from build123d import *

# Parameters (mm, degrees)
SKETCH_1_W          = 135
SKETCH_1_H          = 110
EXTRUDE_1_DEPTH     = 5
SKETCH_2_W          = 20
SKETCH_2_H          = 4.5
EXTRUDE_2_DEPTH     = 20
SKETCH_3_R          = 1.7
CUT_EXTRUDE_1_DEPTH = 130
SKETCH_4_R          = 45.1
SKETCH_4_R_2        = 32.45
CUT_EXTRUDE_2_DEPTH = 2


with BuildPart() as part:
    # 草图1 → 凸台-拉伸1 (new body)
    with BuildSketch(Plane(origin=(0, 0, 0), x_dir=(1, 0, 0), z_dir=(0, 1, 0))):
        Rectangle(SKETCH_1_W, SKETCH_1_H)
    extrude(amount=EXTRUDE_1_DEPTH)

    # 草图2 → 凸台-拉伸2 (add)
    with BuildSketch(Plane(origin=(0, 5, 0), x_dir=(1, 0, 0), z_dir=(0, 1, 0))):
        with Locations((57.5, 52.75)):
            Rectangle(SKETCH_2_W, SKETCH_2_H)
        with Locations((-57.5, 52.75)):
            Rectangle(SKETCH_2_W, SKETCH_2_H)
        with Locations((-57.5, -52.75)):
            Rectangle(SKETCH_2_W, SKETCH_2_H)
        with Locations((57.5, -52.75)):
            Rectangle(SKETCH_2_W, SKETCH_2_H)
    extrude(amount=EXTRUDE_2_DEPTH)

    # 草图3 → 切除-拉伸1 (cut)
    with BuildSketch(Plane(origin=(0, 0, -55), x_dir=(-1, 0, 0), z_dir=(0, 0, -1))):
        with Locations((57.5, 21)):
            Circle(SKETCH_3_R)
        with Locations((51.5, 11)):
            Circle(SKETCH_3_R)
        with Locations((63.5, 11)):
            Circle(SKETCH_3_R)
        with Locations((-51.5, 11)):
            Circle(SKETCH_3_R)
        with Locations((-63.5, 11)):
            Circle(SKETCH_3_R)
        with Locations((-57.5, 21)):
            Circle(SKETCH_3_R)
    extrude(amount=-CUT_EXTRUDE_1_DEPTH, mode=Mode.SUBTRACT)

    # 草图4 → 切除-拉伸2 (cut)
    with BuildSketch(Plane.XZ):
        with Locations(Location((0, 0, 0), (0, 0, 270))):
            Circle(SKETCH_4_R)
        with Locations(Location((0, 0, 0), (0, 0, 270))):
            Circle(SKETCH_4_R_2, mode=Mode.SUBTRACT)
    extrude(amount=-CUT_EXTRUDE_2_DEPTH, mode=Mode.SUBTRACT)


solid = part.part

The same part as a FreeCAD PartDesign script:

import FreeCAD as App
import Part
import Sketcher
from FreeCAD import Vector
Q = App.Units.Quantity


def add_polygon(sketch, points):
    """Adds a closed chain of lines whose ends are joined by coincident constraints."""
    first, n = sketch.GeometryCount, len(points)
    for a, b in zip(points, points[1:] + points[:1]):
        sketch.addGeometry(Part.LineSegment(App.Vector(*a, 0), App.Vector(*b, 0)), False)
    for i in range(n):
        sketch.addConstraint(Sketcher.Constraint("Coincident", first + i, 2, first + (i + 1) % n, 1))

doc = App.newDocument("Part")
body = doc.addObject("PartDesign::Body", "Body")

# Sketch on XZ plane
sketch1 = body.newObject("Sketcher::SketchObject", "Sketch")
sketch1.AttachmentSupport = (doc.getObject("XZ_Plane"), [""])
sketch1.MapMode = "FlatFace"
add_polygon(sketch1, [(-68, -55), (-68, 55), (68, 55), (68, -55)])  # lines 0-3
sketch1.addConstraint([
    Sketcher.Constraint("Vertical", 0),
    Sketcher.Constraint("Horizontal", 1),
    Sketcher.Constraint("Vertical", 2),
    Sketcher.Constraint("Horizontal", 3),
    Sketcher.Constraint("Symmetric", 0, 2, 2, 2, -1, 1),
    Sketcher.Constraint("DistanceX", 1, 1, 1, 2, Q("135 mm")),
    Sketcher.Constraint("DistanceY", 0, 1, 0, 2, Q("110 mm")),
])
pad1 = body.newObject("PartDesign::Pad", "Pad")
pad1.Profile = sketch1
pad1.Length = 5
pad1.Reversed = True

# Sketch on XZ plane
sketch2 = body.newObject("Sketcher::SketchObject", "Sketch001")
sketch2.AttachmentSupport = (doc.getObject("XZ_Plane"), [""])
sketch2.MapMode = "FlatFace"
sketch2.AttachmentOffset = App.Placement(Vector(0, 0, -5), App.Rotation())
add_polygon(sketch2, [(47.5, -55), (47.5, -50.5), (67.5, -50.5), (67.5, -55)])  # lines 0-3
add_polygon(sketch2, [(-67.5, -55), (-67.5, -50.5), (-47.5, -50.5), (-47.5, -55)])  # lines 4-7
add_polygon(sketch2, [(-67.5, 50.5), (-67.5, 55), (-47.5, 55), (-47.5, 50.5)])  # lines 8-11
add_polygon(sketch2, [(47.5, 50.5), (47.5, 55), (67.5, 55), (67.5, 50.5)])  # lines 12-15
sketch2.addConstraint([
    Sketcher.Constraint("Vertical", 0),
    Sketcher.Constraint("Horizontal", 1),
    Sketcher.Constraint("Vertical", 2),
    Sketcher.Constraint("Horizontal", 3),
    Sketcher.Constraint("Vertical", 4),
    Sketcher.Constraint("Horizontal", 5),
    Sketcher.Constraint("Vertical", 6),
    Sketcher.Constraint("Horizontal", 7),
    Sketcher.Constraint("Vertical", 8),
    Sketcher.Constraint("Horizontal", 9),
    Sketcher.Constraint("Vertical", 10),
    Sketcher.Constraint("Horizontal", 11),
    Sketcher.Constraint("Vertical", 12),
    Sketcher.Constraint("Horizontal", 13),
    Sketcher.Constraint("Vertical", 14),
    Sketcher.Constraint("Horizontal", 15),
    Sketcher.Constraint("Symmetric", 2, 2, 8, 2, -1, 1),
    Sketcher.Constraint("Symmetric", 0, 2, 10, 2, -1, 1),
    Sketcher.Constraint("Symmetric", 6, 2, 12, 2, -1, 1),
    Sketcher.Constraint("Symmetric", 4, 2, 14, 2, -1, 1),
    Sketcher.Constraint("Symmetric", 1, 2, 4, 2, -2),
    Sketcher.Constraint("Symmetric", 3, 2, 6, 2, -2),
    Sketcher.Constraint("DistanceX", 1, 1, 1, 2, Q("20 mm")),
    Sketcher.Constraint("DistanceY", 0, 1, 0, 2, Q("4.5 mm")),
    Sketcher.Constraint("DistanceY", 2, 2, -1, 1, Q("55 mm")),
    Sketcher.Constraint("DistanceX", 4, 2, 0, 2, Q("115 mm")),
])
pad2 = body.newObject("PartDesign::Pad", "Pad001")
pad2.Profile = sketch2
pad2.Length = 20
pad2.Reversed = True

# Sketch on XY plane
sketch3 = body.newObject("Sketcher::SketchObject", "Sketch002")
sketch3.AttachmentSupport = (doc.getObject("XY_Plane"), [""])
sketch3.MapMode = "FlatFace"
sketch3.AttachmentOffset = App.Placement(Vector(0, 0, -55), App.Rotation())
sketch3.addGeometry([
    Part.Circle(Vector(-57.5, 21, 0), Vector(0, 0, 1), 1.7),  # 0
    Part.Circle(Vector(-51.5, 11, 0), Vector(0, 0, 1), 1.7),  # 1
    Part.Circle(Vector(-63.5, 11, 0), Vector(0, 0, 1), 1.7),  # 2
    Part.Circle(Vector(51.5, 11, 0), Vector(0, 0, 1), 1.7),  # 3
    Part.Circle(Vector(63.5, 11, 0), Vector(0, 0, 1), 1.7),  # 4
    Part.Circle(Vector(57.5, 21, 0), Vector(0, 0, 1), 1.7),  # 5
], False)
sketch3.addConstraint([
    Sketcher.Constraint("Equal", 0, 1),
    Sketcher.Constraint("Equal", 1, 2),
    Sketcher.Constraint("Equal", 2, 3),
    Sketcher.Constraint("Equal", 3, 4),
    Sketcher.Constraint("Equal", 4, 5),
    Sketcher.Constraint("Symmetric", 1, 3, 3, 3, -2),
    Sketcher.Constraint("Symmetric", 2, 3, 4, 3, -2),
    Sketcher.Constraint("Symmetric", 0, 3, 5, 3, -2),
    Sketcher.Constraint("Horizontal", 1, 3, 2, 3),
    Sketcher.Constraint("Diameter", 0, Q("3.4 mm")),
    Sketcher.Constraint("DistanceY", -1, 1, 0, 3, Q("21 mm")),
    Sketcher.Constraint("DistanceY", -1, 1, 1, 3, Q("11 mm")),
    Sketcher.Constraint("DistanceX", 0, 3, 1, 3, Q("6 mm")),
    Sketcher.Constraint("DistanceX", 2, 3, 0, 3, Q("6 mm")),
    Sketcher.Constraint("DistanceX", 1, 3, 3, 3, Q("103 mm")),
])
pocket1 = body.newObject("PartDesign::Pocket", "Pocket")
pocket1.Profile = sketch3
pocket1.Length = 130
pocket1.Reversed = True

# Sketch on XZ plane
sketch4 = body.newObject("Sketcher::SketchObject", "Sketch003")
sketch4.AttachmentSupport = (doc.getObject("XZ_Plane"), [""])
sketch4.MapMode = "FlatFace"
sketch4.addGeometry([
    Part.Circle(Vector(0, 0, 0), Vector(0, 0, 1), 45),
    Part.Circle(Vector(0, 0, 0), Vector(0, 0, 1), 32),
], False)
sketch4.addConstraint([
    Sketcher.Constraint("Coincident", 0, 3, -1, 1),
    Sketcher.Constraint("Coincident", 1, 3, -1, 1),
    Sketcher.Constraint("Diameter", 0, Q("90.2 mm")),
    Sketcher.Constraint("Diameter", 1, Q("64.9 mm")),
])
pocket2 = body.newObject("PartDesign::Pocket", "Pocket001")
pocket2.Profile = sketch4
pocket2.Length = 2

doc.recompute()
